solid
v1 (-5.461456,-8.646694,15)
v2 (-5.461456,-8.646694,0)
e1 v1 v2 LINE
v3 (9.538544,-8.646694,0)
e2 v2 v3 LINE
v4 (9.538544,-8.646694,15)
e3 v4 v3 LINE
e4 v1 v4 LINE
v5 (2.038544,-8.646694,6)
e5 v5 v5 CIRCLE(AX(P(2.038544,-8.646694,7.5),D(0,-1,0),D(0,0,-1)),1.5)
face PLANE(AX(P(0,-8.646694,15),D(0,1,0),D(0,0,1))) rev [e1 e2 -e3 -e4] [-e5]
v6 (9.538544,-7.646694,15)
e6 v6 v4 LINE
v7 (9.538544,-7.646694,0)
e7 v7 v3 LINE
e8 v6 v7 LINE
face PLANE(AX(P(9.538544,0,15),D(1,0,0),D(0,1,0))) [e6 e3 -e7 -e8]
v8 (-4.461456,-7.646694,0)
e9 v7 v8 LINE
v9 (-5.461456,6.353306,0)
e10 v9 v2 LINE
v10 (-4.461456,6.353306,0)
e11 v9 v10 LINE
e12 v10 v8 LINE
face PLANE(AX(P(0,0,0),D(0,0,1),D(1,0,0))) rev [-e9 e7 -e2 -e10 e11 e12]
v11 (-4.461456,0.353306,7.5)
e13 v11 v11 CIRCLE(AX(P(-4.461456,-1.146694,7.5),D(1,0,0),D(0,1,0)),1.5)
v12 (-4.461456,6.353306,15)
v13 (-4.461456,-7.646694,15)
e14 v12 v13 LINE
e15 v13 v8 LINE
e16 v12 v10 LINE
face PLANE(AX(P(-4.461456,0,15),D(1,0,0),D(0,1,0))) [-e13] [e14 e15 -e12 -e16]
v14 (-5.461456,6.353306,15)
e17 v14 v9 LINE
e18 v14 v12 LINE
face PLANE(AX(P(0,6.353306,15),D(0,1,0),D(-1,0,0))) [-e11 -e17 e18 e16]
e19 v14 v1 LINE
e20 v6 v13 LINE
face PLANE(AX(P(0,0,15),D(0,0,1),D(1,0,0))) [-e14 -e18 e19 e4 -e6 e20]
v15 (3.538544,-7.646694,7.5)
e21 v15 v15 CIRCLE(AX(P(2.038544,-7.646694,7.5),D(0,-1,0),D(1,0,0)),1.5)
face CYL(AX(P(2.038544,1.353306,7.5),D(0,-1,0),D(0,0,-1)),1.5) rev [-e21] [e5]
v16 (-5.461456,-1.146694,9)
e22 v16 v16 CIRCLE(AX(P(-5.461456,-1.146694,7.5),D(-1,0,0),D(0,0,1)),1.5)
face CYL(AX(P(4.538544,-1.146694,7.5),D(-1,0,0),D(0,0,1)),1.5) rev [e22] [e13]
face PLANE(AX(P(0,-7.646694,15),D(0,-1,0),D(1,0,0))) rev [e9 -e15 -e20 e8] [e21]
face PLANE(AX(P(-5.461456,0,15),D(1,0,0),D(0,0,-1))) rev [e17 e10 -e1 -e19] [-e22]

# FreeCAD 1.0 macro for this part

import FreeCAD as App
import Part
import Sketcher


def add_polygon(sketch, points):
    """Adds a closed chain of lines whose ends are joined by coincident constraints."""
    first, n = sketch.GeometryCount, len(points)
    for a, b in zip(points, points[1:] + points[:1]):
        sketch.addGeometry(Part.LineSegment(App.Vector(*a, 0), App.Vector(*b, 0)), False)
    for i in range(n):
        sketch.addConstraint(Sketcher.Constraint("Coincident", first + i, 2, first + (i + 1) % n, 1))

doc = App.newDocument("Part")
body = doc.addObject("PartDesign::Body", "Body")

# Sketch on XY plane
sketch1 = body.newObject("Sketcher::SketchObject", "Sketch")
sketch1.AttachmentSupport = (doc.getObject("XY_Plane"), [""])
sketch1.MapMode = "FlatFace"
add_polygon(sketch1, [(-4.5, 6.4), (-5.5, 6.4), (-5.5, -8.6), (9.5, -8.6), (9.5, -7.6), (-4.5, -7.6)])  # lines 0-5
sketch1.addConstraint([
    Sketcher.Constraint("Horizontal", 0),
    Sketcher.Constraint("Vertical", 1),
    Sketcher.Constraint("Horizontal", 2),
    Sketcher.Constraint("Vertical", 3),
    Sketcher.Constraint("Horizontal", 4),
    Sketcher.Constraint("Vertical", 5),
    Sketcher.Constraint("Equal", 2, 1),
    Sketcher.Constraint("Equal", 0, 3),
    Sketcher.Constraint("DistanceX", 0, 2, 0, 1, 1.0),
    Sketcher.Constraint("DistanceX", 2, 1, 2, 2, 15.0),
    Sketcher.Constraint("DistanceX", 0, 2, -1, 1, 5.461456),
    Sketcher.Constraint("DistanceY", -1, 1, 0, 2, 6.353306),
])
pad1 = body.newObject("PartDesign::Pad", "Pad")
pad1.Profile = sketch1
pad1.Length = 15

# Sketch on YZ plane
sketch2 = body.newObject("Sketcher::SketchObject", "Sketch001")
sketch2.AttachmentSupport = (doc.getObject("YZ_Plane"), [""])
sketch2.MapMode = "FlatFace"
sketch2.AttachmentOffset = App.Placement(App.Vector(0, 0, -5.461456), App.Rotation())
sketch2.addGeometry(Part.Circle(App.Vector(-1.1, 7.5, 0), App.Vector(0, 0, 1), 1.5), False)
sketch2.addConstraint([
    Sketcher.Constraint("Diameter", 0, 3.0),
    Sketcher.Constraint("DistanceY", -1, 1, 0, 3, 7.5),
    Sketcher.Constraint("DistanceX", 0, 3, -1, 1, 1.146694),
])
pocket1 = body.newObject("PartDesign::Pocket", "Pocket")
pocket1.Profile = sketch2
pocket1.Length = 10
pocket1.Reversed = True

# Sketch on XZ plane
sketch3 = body.newObject("Sketcher::SketchObject", "Sketch002")
sketch3.AttachmentSupport = (doc.getObject("XZ_Plane"), [""])
sketch3.MapMode = "FlatFace"
sketch3.AttachmentOffset = App.Placement(App.Vector(0, 0, 8.646694), App.Rotation())
sketch3.addGeometry(Part.Circle(App.Vector(2, 7.5, 0), App.Vector(0, 0, 1), 1.5), False)
sketch3.addConstraint([
    Sketcher.Constraint("Diameter", 0, 3.0),
    Sketcher.Constraint("DistanceY", -1, 1, 0, 3, 7.5),
    Sketcher.Constraint("DistanceX", -1, 1, 0, 3, 2.038544),
])
pocket2 = body.newObject("PartDesign::Pocket", "Pocket001")
pocket2.Profile = sketch3
pocket2.Length = 10

doc.recompute()
